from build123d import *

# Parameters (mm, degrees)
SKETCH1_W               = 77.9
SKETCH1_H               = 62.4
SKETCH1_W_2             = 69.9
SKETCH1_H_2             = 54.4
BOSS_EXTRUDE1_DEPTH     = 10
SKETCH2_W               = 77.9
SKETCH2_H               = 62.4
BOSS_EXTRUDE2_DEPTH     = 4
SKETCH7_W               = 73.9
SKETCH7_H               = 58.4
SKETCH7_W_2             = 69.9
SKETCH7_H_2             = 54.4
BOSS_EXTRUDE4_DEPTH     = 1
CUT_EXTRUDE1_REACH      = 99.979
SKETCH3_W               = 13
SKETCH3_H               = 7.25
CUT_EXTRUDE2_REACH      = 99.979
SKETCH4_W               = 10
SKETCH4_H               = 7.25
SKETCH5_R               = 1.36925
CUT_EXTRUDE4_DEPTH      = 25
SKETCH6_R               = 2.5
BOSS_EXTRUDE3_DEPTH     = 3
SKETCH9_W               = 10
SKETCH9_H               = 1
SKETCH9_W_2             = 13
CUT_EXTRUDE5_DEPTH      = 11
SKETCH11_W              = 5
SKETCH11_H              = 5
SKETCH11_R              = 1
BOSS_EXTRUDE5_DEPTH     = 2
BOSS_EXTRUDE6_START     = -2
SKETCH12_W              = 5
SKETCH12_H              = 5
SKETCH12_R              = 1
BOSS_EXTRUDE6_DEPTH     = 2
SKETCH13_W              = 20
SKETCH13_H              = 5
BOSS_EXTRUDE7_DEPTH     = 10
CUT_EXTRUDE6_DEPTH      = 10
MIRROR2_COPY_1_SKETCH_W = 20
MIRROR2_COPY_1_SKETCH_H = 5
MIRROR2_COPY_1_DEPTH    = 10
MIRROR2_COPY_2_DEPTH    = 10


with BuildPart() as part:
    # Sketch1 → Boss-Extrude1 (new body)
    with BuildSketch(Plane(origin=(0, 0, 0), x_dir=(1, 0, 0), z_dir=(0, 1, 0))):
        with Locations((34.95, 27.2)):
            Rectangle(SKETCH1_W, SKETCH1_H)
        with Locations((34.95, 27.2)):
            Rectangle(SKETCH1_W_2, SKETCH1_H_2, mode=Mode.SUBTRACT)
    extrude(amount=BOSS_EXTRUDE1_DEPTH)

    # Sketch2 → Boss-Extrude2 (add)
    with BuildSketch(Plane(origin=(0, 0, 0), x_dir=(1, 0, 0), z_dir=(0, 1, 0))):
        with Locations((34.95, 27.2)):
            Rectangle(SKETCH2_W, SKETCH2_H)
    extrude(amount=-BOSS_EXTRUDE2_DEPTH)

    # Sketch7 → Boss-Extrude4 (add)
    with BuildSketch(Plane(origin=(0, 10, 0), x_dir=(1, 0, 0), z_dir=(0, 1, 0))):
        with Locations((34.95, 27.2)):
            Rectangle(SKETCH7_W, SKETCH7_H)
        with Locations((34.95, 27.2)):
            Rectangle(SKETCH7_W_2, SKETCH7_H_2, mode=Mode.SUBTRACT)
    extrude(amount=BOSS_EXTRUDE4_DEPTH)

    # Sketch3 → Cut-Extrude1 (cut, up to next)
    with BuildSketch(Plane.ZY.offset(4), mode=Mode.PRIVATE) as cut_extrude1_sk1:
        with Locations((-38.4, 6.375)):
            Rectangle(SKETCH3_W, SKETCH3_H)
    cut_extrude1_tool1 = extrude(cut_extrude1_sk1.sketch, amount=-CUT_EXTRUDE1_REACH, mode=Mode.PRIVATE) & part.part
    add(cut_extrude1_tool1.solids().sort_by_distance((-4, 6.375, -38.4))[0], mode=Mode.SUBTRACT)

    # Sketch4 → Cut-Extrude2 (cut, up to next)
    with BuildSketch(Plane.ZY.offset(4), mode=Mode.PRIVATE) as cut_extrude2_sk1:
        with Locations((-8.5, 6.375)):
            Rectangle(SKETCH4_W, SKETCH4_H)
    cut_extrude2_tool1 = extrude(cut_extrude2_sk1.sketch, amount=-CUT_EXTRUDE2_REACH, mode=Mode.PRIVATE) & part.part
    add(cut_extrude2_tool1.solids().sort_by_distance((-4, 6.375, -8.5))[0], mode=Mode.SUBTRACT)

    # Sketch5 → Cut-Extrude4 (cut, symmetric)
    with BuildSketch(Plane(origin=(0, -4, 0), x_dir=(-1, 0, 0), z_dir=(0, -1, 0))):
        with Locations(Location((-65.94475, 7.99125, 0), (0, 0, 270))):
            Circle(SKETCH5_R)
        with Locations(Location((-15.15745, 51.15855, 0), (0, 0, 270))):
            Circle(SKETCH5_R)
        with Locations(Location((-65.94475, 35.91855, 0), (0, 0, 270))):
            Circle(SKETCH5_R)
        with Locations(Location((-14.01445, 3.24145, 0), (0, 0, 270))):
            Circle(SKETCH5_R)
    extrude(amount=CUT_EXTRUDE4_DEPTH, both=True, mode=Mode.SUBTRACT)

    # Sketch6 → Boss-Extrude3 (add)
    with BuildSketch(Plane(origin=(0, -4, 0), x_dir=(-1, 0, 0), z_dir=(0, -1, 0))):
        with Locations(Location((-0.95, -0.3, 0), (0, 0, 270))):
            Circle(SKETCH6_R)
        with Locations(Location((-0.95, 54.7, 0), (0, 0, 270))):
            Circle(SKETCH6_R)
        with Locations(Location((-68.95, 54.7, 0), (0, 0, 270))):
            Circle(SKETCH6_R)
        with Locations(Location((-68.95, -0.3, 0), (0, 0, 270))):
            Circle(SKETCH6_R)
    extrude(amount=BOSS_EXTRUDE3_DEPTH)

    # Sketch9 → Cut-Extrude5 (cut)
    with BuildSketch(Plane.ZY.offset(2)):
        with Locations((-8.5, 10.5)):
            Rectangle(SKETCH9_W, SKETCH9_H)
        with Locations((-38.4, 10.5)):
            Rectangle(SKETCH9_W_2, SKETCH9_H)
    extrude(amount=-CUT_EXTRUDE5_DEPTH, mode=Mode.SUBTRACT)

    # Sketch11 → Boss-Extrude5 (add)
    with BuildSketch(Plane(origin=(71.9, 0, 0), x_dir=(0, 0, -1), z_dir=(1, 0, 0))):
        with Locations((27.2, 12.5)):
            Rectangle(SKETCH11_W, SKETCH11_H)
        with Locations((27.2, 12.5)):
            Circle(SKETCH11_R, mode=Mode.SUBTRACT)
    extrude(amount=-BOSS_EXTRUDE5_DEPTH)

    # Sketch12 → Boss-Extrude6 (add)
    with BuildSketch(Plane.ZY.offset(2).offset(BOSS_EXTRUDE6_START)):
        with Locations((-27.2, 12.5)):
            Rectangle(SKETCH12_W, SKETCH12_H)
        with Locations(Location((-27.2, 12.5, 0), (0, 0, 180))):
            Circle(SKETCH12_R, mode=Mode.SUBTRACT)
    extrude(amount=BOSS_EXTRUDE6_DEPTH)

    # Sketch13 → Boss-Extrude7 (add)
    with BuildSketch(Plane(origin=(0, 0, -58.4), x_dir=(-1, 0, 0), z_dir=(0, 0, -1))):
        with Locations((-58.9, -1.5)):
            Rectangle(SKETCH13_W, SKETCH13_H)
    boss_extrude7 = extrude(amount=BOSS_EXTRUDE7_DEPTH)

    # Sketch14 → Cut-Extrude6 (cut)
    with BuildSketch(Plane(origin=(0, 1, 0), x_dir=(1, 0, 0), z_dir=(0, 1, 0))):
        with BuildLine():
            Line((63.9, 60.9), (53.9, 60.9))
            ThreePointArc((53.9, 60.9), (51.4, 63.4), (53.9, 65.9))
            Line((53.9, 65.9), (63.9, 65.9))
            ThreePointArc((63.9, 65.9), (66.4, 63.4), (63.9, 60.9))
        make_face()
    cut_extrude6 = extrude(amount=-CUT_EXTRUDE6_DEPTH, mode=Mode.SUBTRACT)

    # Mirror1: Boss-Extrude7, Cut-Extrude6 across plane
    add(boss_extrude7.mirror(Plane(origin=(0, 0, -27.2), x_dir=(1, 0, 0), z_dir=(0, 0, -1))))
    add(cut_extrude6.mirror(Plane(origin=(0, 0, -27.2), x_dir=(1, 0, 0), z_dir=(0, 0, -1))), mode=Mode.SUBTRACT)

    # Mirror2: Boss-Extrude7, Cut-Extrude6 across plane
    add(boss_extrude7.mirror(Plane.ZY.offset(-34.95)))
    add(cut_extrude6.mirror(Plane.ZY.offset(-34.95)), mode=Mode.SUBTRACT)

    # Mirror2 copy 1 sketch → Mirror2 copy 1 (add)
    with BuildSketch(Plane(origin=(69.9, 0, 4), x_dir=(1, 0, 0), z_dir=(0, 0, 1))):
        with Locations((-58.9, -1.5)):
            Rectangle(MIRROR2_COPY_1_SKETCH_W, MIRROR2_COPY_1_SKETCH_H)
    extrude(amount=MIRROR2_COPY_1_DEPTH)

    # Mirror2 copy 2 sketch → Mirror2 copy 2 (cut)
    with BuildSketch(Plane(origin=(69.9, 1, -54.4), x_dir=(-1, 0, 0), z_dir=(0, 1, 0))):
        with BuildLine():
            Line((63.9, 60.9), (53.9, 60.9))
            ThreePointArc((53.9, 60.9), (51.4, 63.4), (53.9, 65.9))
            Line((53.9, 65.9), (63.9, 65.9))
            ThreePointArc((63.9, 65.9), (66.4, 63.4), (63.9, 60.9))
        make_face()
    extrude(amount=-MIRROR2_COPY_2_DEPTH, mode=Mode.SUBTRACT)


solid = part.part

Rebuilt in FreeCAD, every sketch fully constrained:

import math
import FreeCAD as App
import Part
import Sketcher

V = App.Vector
Q = App.Units.Quantity

doc = App.newDocument("Part")
body = doc.addObject("PartDesign::Body", "Body")

# Sketch on XZ plane
sketch1 = body.newObject("Sketcher::SketchObject", "Sketch")
sketch1.AttachmentSupport = (doc.getObject("XZ_Plane"), [""])
sketch1.MapMode = "FlatFace"
sketch1.addGeometry(Part.LineSegment(V(-4, -58.4, 0), V(-4, 4, 0)), False)
sketch1.addGeometry(Part.LineSegment(V(-4, 4, 0), V(73.9, 4, 0)), False)
sketch1.addGeometry(Part.LineSegment(V(73.9, 4, 0), V(73.9, -58.4, 0)), False)
sketch1.addGeometry(Part.LineSegment(V(73.9, -58.4, 0), V(-4, -58.4, 0)), False)
sketch1.addGeometry(Part.LineSegment(V(69.9, 0, 0), V(0, 0, 0)), False)
sketch1.addGeometry(Part.LineSegment(V(0, 0, 0), V(0, -54.4, 0)), False)
sketch1.addGeometry(Part.LineSegment(V(0, -54.4, 0), V(69.9, -54.4, 0)), False)
sketch1.addGeometry(Part.LineSegment(V(69.9, -54.4, 0), V(69.9, 0, 0)), False)
sketch1.addConstraint(Sketcher.Constraint("Coincident", 0, 2, 1, 1))
sketch1.addConstraint(Sketcher.Constraint("Coincident", 1, 2, 2, 1))
sketch1.addConstraint(Sketcher.Constraint("Coincident", 2, 2, 3, 1))
sketch1.addConstraint(Sketcher.Constraint("Coincident", 3, 2, 0, 1))
sketch1.addConstraint(Sketcher.Constraint("Coincident", 4, 2, 5, 1))
sketch1.addConstraint(Sketcher.Constraint("Coincident", 5, 2, 6, 1))
sketch1.addConstraint(Sketcher.Constraint("Coincident", 6, 2, 7, 1))
sketch1.addConstraint(Sketcher.Constraint("Coincident", 7, 2, 4, 1))
sketch1.addConstraint(Sketcher.Constraint("Vertical", 0))
sketch1.addConstraint(Sketcher.Constraint("Horizontal", 1))
sketch1.addConstraint(Sketcher.Constraint("Vertical", 2))
sketch1.addConstraint(Sketcher.Constraint("Horizontal", 3))
sketch1.addConstraint(Sketcher.Constraint("Horizontal", 4))
sketch1.addConstraint(Sketcher.Constraint("Vertical", 5))
sketch1.addConstraint(Sketcher.Constraint("Horizontal", 6))
sketch1.addConstraint(Sketcher.Constraint("Vertical", 7))
sketch1.addConstraint(Sketcher.Constraint("Coincident", 4, 2, -1, 1))
sketch1.addConstraint(Sketcher.Constraint("DistanceX", 1, 1, 1, 2, Q("77.9 mm")))
sketch1.addConstraint(Sketcher.Constraint("DistanceX", 4, 2, 4, 1, Q("69.9 mm")))
sketch1.addConstraint(Sketcher.Constraint("DistanceY", 0, 1, 0, 2, Q("62.4 mm")))
sketch1.addConstraint(Sketcher.Constraint("DistanceY", 5, 2, 5, 1, Q("54.4 mm")))
sketch1.addConstraint(Sketcher.Constraint("DistanceX", 0, 2, -1, 1, Q("4 mm")))
sketch1.addConstraint(Sketcher.Constraint("DistanceY", -1, 1, 0, 2, Q("4 mm")))
pad1 = body.newObject("PartDesign::Pad", "Pad")
pad1.Profile = sketch1
pad1.Length = 10
pad1.Reversed = True

# Sketch on XZ plane
sketch2 = body.newObject("Sketcher::SketchObject", "Sketch001")
sketch2.AttachmentSupport = (doc.getObject("XZ_Plane"), [""])
sketch2.MapMode = "FlatFace"
sketch2.addGeometry(Part.LineSegment(V(-4, -58.4, 0), V(-4, 4, 0)), False)
sketch2.addGeometry(Part.LineSegment(V(-4, 4, 0), V(73.9, 4, 0)), False)
sketch2.addGeometry(Part.LineSegment(V(73.9, 4, 0), V(73.9, -58.4, 0)), False)
sketch2.addGeometry(Part.LineSegment(V(73.9, -58.4, 0), V(-4, -58.4, 0)), False)
sketch2.addConstraint(Sketcher.Constraint("Coincident", 0, 2, 1, 1))
sketch2.addConstraint(Sketcher.Constraint("Coincident", 1, 2, 2, 1))
sketch2.addConstraint(Sketcher.Constraint("Coincident", 2, 2, 3, 1))
sketch2.addConstraint(Sketcher.Constraint("Coincident", 3, 2, 0, 1))
sketch2.addConstraint(Sketcher.Constraint("Vertical", 0))
sketch2.addConstraint(Sketcher.Constraint("Horizontal", 1))
sketch2.addConstraint(Sketcher.Constraint("Vertical", 2))
sketch2.addConstraint(Sketcher.Constraint("Horizontal", 3))
sketch2.addConstraint(Sketcher.Constraint("DistanceX", 1, 1, 1, 2, Q("77.9 mm")))
sketch2.addConstraint(Sketcher.Constraint("DistanceY", 0, 1, 0, 2, Q("62.4 mm")))
sketch2.addConstraint(Sketcher.Constraint("DistanceX", 0, 2, -1, 1, Q("4 mm")))
sketch2.addConstraint(Sketcher.Constraint("DistanceY", -1, 1, 0, 2, Q("4 mm")))
pad2 = body.newObject("PartDesign::Pad", "Pad001")
pad2.Profile = sketch2
pad2.Length = 4

# Sketch on XZ plane
sketch3 = body.newObject("Sketcher::SketchObject", "Sketch002")
sketch3.AttachmentSupport = (doc.getObject("XZ_Plane"), [""])
sketch3.MapMode = "FlatFace"
sketch3.AttachmentOffset = App.Placement(V(0, 0, -10), App.Rotation())
sketch3.addGeometry(Part.LineSegment(V(-2, -56.4, 0), V(-2, 2, 0)), False)
sketch3.addGeometry(Part.LineSegment(V(-2, 2, 0), V(71.9, 2, 0)), False)
sketch3.addGeometry(Part.LineSegment(V(71.9, 2, 0), V(71.9, -56.4, 0)), False)
sketch3.addGeometry(Part.LineSegment(V(71.9, -56.4, 0), V(-2, -56.4, 0)), False)
sketch3.addGeometry(Part.LineSegment(V(69.9, 0, 0), V(0, 0, 0)), False)
sketch3.addGeometry(Part.LineSegment(V(0, 0, 0), V(0, -54.4, 0)), False)
sketch3.addGeometry(Part.LineSegment(V(0, -54.4, 0), V(69.9, -54.4, 0)), False)
sketch3.addGeometry(Part.LineSegment(V(69.9, -54.4, 0), V(69.9, 0, 0)), False)
sketch3.addConstraint(Sketcher.Constraint("Coincident", 0, 2, 1, 1))
sketch3.addConstraint(Sketcher.Constraint("Coincident", 1, 2, 2, 1))
sketch3.addConstraint(Sketcher.Constraint("Coincident", 2, 2, 3, 1))
sketch3.addConstraint(Sketcher.Constraint("Coincident", 3, 2, 0, 1))
sketch3.addConstraint(Sketcher.Constraint("Coincident", 4, 2, 5, 1))
sketch3.addConstraint(Sketcher.Constraint("Coincident", 5, 2, 6, 1))
sketch3.addConstraint(Sketcher.Constraint("Coincident", 6, 2, 7, 1))
sketch3.addConstraint(Sketcher.Constraint("Coincident", 7, 2, 4, 1))
sketch3.addConstraint(Sketcher.Constraint("Vertical", 0))
sketch3.addConstraint(Sketcher.Constraint("Horizontal", 1))
sketch3.addConstraint(Sketcher.Constraint("Vertical", 2))
sketch3.addConstraint(Sketcher.Constraint("Horizontal", 3))
sketch3.addConstraint(Sketcher.Constraint("Horizontal", 4))
sketch3.addConstraint(Sketcher.Constraint("Vertical", 5))
sketch3.addConstraint(Sketcher.Constraint("Horizontal", 6))
sketch3.addConstraint(Sketcher.Constraint("Vertical", 7))
sketch3.addConstraint(Sketcher.Constraint("Coincident", 4, 2, -1, 1))
sketch3.addConstraint(Sketcher.Constraint("DistanceX", 1, 1, 1, 2, Q("73.9 mm")))
sketch3.addConstraint(Sketcher.Constraint("DistanceX", 4, 2, 4, 1, Q("69.9 mm")))
sketch3.addConstraint(Sketcher.Constraint("DistanceY", 0, 1, 0, 2, Q("58.4 mm")))
sketch3.addConstraint(Sketcher.Constraint("DistanceY", 5, 2, 5, 1, Q("54.4 mm")))
sketch3.addConstraint(Sketcher.Constraint("DistanceX", 0, 2, -1, 1, Q("2 mm")))
sketch3.addConstraint(Sketcher.Constraint("DistanceY", -1, 1, 0, 2, Q("2 mm")))
pad3 = body.newObject("PartDesign::Pad", "Pad002")
pad3.Profile = sketch3
pad3.Length = 1
pad3.Reversed = True

# Sketch on YZ plane
sketch4 = body.newObject("Sketcher::SketchObject", "Sketch003")
sketch4.AttachmentSupport = (doc.getObject("YZ_Plane"), [""])
sketch4.MapMode = "FlatFace"
sketch4.AttachmentOffset = App.Placement(V(0, 0, -4), App.Rotation())
sketch4.addGeometry(Part.LineSegment(V(10, -44.9, 0), V(2.75, -44.9, 0)), False)
sketch4.addGeometry(Part.LineSegment(V(2.75, -44.9, 0), V(2.75, -31.9, 0)), False)
sketch4.addGeometry(Part.LineSegment(V(2.75, -31.9, 0), V(10, -31.9, 0)), False)
sketch4.addGeometry(Part.LineSegment(V(10, -31.9, 0), V(10, -44.9, 0)), False)
sketch4.addConstraint(Sketcher.Constraint("Coincident", 0, 2, 1, 1))
sketch4.addConstraint(Sketcher.Constraint("Coincident", 1, 2, 2, 1))
sketch4.addConstraint(Sketcher.Constraint("Coincident", 2, 2, 3, 1))
sketch4.addConstraint(Sketcher.Constraint("Coincident", 3, 2, 0, 1))
sketch4.addConstraint(Sketcher.Constraint("Horizontal", 0))
sketch4.addConstraint(Sketcher.Constraint("Vertical", 1))
sketch4.addConstraint(Sketcher.Constraint("Horizontal", 2))
sketch4.addConstraint(Sketcher.Constraint("Vertical", 3))
sketch4.addConstraint(Sketcher.Constraint("DistanceY", 1, 1, 1, 2, Q("13 mm")))
sketch4.addConstraint(Sketcher.Constraint("DistanceX", -1, 1, 2, 2, Q("10 mm")))
sketch4.addConstraint(Sketcher.Constraint("DistanceX", 0, 2, 0, 1, Q("7.25 mm")))
sketch4.addConstraint(Sketcher.Constraint("DistanceY", 0, 2, -1, 1, Q("44.9 mm")))
pocket1 = body.newObject("PartDesign::Pocket", "Pocket")
pocket1.Profile = sketch4
pocket1.Type = "UpToFirst"
pocket1.Reversed = True

# Sketch on YZ plane
sketch5 = body.newObject("Sketcher::SketchObject", "Sketch004")
sketch5.AttachmentSupport = (doc.getObject("YZ_Plane"), [""])
sketch5.MapMode = "FlatFace"
sketch5.AttachmentOffset = App.Placement(V(0, 0, -4), App.Rotation())
sketch5.addGeometry(Part.LineSegment(V(10, -13.5, 0), V(2.75, -13.5, 0)), False)
sketch5.addGeometry(Part.LineSegment(V(2.75, -13.5, 0), V(2.75, -3.5, 0)), False)
sketch5.addGeometry(Part.LineSegment(V(2.75, -3.5, 0), V(10, -3.5, 0)), False)
sketch5.addGeometry(Part.LineSegment(V(10, -3.5, 0), V(10, -13.5, 0)), False)
sketch5.addConstraint(Sketcher.Constraint("Coincident", 0, 2, 1, 1))
sketch5.addConstraint(Sketcher.Constraint("Coincident", 1, 2, 2, 1))
sketch5.addConstraint(Sketcher.Constraint("Coincident", 2, 2, 3, 1))
sketch5.addConstraint(Sketcher.Constraint("Coincident", 3, 2, 0, 1))
sketch5.addConstraint(Sketcher.Constraint("Horizontal", 0))
sketch5.addConstraint(Sketcher.Constraint("Vertical", 1))
sketch5.addConstraint(Sketcher.Constraint("Horizontal", 2))
sketch5.addConstraint(Sketcher.Constraint("Vertical", 3))
sketch5.addConstraint(Sketcher.Constraint("DistanceY", 1, 1, 1, 2, Q("10 mm")))
sketch5.addConstraint(Sketcher.Constraint("DistanceX", -1, 1, 2, 2, Q("10 mm")))
sketch5.addConstraint(Sketcher.Constraint("DistanceX", 0, 2, 0, 1, Q("7.25 mm")))
sketch5.addConstraint(Sketcher.Constraint("DistanceY", 0, 2, -1, 1, Q("13.5 mm")))
pocket2 = body.newObject("PartDesign::Pocket", "Pocket001")
pocket2.Profile = sketch5
pocket2.Type = "UpToFirst"
pocket2.Reversed = True

# Sketch on XZ plane
sketch6 = body.newObject("Sketcher::SketchObject", "Sketch005")
sketch6.AttachmentSupport = (doc.getObject("XZ_Plane"), [""])
sketch6.MapMode = "FlatFace"
sketch6.AttachmentOffset = App.Placement(V(0, 0, 4), App.Rotation())
sketch6.addGeometry(Part.Circle(V(65.94475, -7.99125, 0), V(0, 0, 1), 1.36925), False)
sketch6.addGeometry(Part.Circle(V(15.15745, -51.15855, 0), V(0, 0, 1), 1.36925), False)
sketch6.addGeometry(Part.Circle(V(65.94475, -35.91855, 0), V(0, 0, 1), 1.36925), False)
sketch6.addGeometry(Part.Circle(V(14.01445, -3.24145, 0), V(0, 0, 1), 1.36925), False)
sketch6.addConstraint(Sketcher.Constraint("Equal", 0, 1))
sketch6.addConstraint(Sketcher.Constraint("Equal", 1, 2))
sketch6.addConstraint(Sketcher.Constraint("Equal", 2, 3))
sketch6.addConstraint(Sketcher.Constraint("Vertical", 0, 3, 2, 3))
sketch6.addConstraint(Sketcher.Constraint("Diameter", 0, Q("2.7385 mm")))
sketch6.addConstraint(Sketcher.Constraint("DistanceY", 1, 3, 2, 3, Q("15.24 mm")))
sketch6.addConstraint(Sketcher.Constraint("DistanceX", 3, 3, 1, 3, Q("1.143 mm")))
sketch6.addConstraint(Sketcher.Constraint("DistanceX", 1, 3, 0, 3, Q("50.7873 mm")))
sketch6.addConstraint(Sketcher.Constraint("DistanceY", 1, 3, 0, 3, Q("43.1673 mm")))
sketch6.addConstraint(Sketcher.Constraint("DistanceY", 1, 3, 3, 3, Q("47.9171 mm")))
sketch6.addConstraint(Sketcher.Constraint("DistanceX", -1, 1, 0, 3, Q("65.94475 mm")))
sketch6.addConstraint(Sketcher.Constraint("DistanceY", 0, 3, -1, 1, Q("7.99125 mm")))
pocket3 = body.newObject("PartDesign::Pocket", "Pocket002")
pocket3.Profile = sketch6
pocket3.Length = 50
pocket3.Midplane = True

# Sketch on XZ plane
sketch7 = body.newObject("Sketcher::SketchObject", "Sketch006")
sketch7.AttachmentSupport = (doc.getObject("XZ_Plane"), [""])
sketch7.MapMode = "FlatFace"
sketch7.AttachmentOffset = App.Placement(V(0, 0, 4), App.Rotation())
sketch7.addGeometry(Part.Circle(V(0.95, 0.3, 0), V(0, 0, 1), 2.5), False)
sketch7.addGeometry(Part.Circle(V(0.95, -54.7, 0), V(0, 0, 1), 2.5), False)
sketch7.addGeometry(Part.Circle(V(68.95, -54.7, 0), V(0, 0, 1), 2.5), False)
sketch7.addGeometry(Part.Circle(V(68.95, 0.3, 0), V(0, 0, 1), 2.5), False)
sketch7.addConstraint(Sketcher.Constraint("Equal", 0, 1))
sketch7.addConstraint(Sketcher.Constraint("Equal", 1, 2))
sketch7.addConstraint(Sketcher.Constraint("Equal", 2, 3))
sketch7.addConstraint(Sketcher.Constraint("Horizontal", 1, 3, 2, 3))
sketch7.addConstraint(Sketcher.Constraint("Horizontal", 0, 3, 3, 3))
sketch7.addConstraint(Sketcher.Constraint("Vertical", 0, 3, 1, 3))
sketch7.addConstraint(Sketcher.Constraint("Vertical", 2, 3, 3, 3))
sketch7.addConstraint(Sketcher.Constraint("Diameter", 0, Q("5 mm")))
sketch7.addConstraint(Sketcher.Constraint("DistanceY", 1, 3, 0, 3, Q("55 mm")))
sketch7.addConstraint(Sketcher.Constraint("DistanceX", 1, 3, 2, 3, Q("68 mm")))
sketch7.addConstraint(Sketcher.Constraint("DistanceY", -1, 1, 0, 3, Q("0.3 mm")))
sketch7.addConstraint(Sketcher.Constraint("DistanceX", -1, 1, 0, 3, Q("0.95 mm")))
pad4 = body.newObject("PartDesign::Pad", "Pad003")
pad4.Profile = sketch7
pad4.Length = 3

# Sketch on YZ plane
sketch8 = body.newObject("Sketcher::SketchObject", "Sketch007")
sketch8.AttachmentSupport = (doc.getObject("YZ_Plane"), [""])
sketch8.MapMode = "FlatFace"
sketch8.AttachmentOffset = App.Placement(V(0, 0, -2), App.Rotation())
sketch8.addGeometry(Part.LineSegment(V(11, -13.5, 0), V(10, -13.5, 0)), False)
sketch8.addGeometry(Part.LineSegment(V(10, -13.5, 0), V(10, -3.5, 0)), False)
sketch8.addGeometry(Part.LineSegment(V(10, -3.5, 0), V(11, -3.5, 0)), False)
sketch8.addGeometry(Part.LineSegment(V(11, -3.5, 0), V(11, -13.5, 0)), False)
sketch8.addGeometry(Part.LineSegment(V(11, -44.9, 0), V(10, -44.9, 0)), False)
sketch8.addGeometry(Part.LineSegment(V(10, -44.9, 0), V(10, -31.9, 0)), False)
sketch8.addGeometry(Part.LineSegment(V(10, -31.9, 0), V(11, -31.9, 0)), False)
sketch8.addGeometry(Part.LineSegment(V(11, -31.9, 0), V(11, -44.9, 0)), False)
sketch8.addConstraint(Sketcher.Constraint("Coincident", 0, 2, 1, 1))
sketch8.addConstraint(Sketcher.Constraint("Coincident", 1, 2, 2, 1))
sketch8.addConstraint(Sketcher.Constraint("Coincident", 2, 2, 3, 1))
sketch8.addConstraint(Sketcher.Constraint("Coincident", 3, 2, 0, 1))
sketch8.addConstraint(Sketcher.Constraint("Coincident", 4, 2, 5, 1))
sketch8.addConstraint(Sketcher.Constraint("Coincident", 5, 2, 6, 1))
sketch8.addConstraint(Sketcher.Constraint("Coincident", 6, 2, 7, 1))
sketch8.addConstraint(Sketcher.Constraint("Coincident", 7, 2, 4, 1))
sketch8.addConstraint(Sketcher.Constraint("Horizontal", 0))
sketch8.addConstraint(Sketcher.Constraint("Vertical", 1))
sketch8.addConstraint(Sketcher.Constraint("Horizontal", 2))
sketch8.addConstraint(Sketcher.Constraint("Vertical", 3))
sketch8.addConstraint(Sketcher.Constraint("Horizontal", 4))
sketch8.addConstraint(Sketcher.Constraint("Vertical", 5))
sketch8.addConstraint(Sketcher.Constraint("Horizontal", 6))
sketch8.addConstraint(Sketcher.Constraint("Vertical", 7))
sketch8.addConstraint(Sketcher.Constraint("Vertical", 1, 2, 4, 2))
sketch8.addConstraint(Sketcher.Constraint("Vertical", 3, 2, 6, 2))
sketch8.addConstraint(Sketcher.Constraint("DistanceX", 0, 2, 0, 1, Q("1 mm")))
sketch8.addConstraint(Sketcher.Constraint("DistanceY", 1, 1, 1, 2, Q("10 mm")))
sketch8.addConstraint(Sketcher.Constraint("DistanceY", 5, 1, 5, 2, Q("13 mm")))
sketch8.addConstraint(Sketcher.Constraint("DistanceX", -1, 1, 0, 2, Q("10 mm")))
sketch8.addConstraint(Sketcher.Constraint("DistanceY", 0, 2, -1, 1, Q("13.5 mm")))
sketch8.addConstraint(Sketcher.Constraint("DistanceY", 4, 2, -1, 1, Q("44.9 mm")))
pocket4 = body.newObject("PartDesign::Pocket", "Pocket003")
pocket4.Profile = sketch8
pocket4.Length = 11
pocket4.Reversed = True

# Sketch on YZ plane
sketch9 = body.newObject("Sketcher::SketchObject", "Sketch008")
sketch9.AttachmentSupport = (doc.getObject("YZ_Plane"), [""])
sketch9.MapMode = "FlatFace"
sketch9.AttachmentOffset = App.Placement(V(0, 0, 71.9), App.Rotation())
sketch9.addGeometry(Part.LineSegment(V(15, -24.7, 0), V(10, -24.7, 0)), False)
sketch9.addGeometry(Part.LineSegment(V(10, -24.7, 0), V(10, -29.7, 0)), False)
sketch9.addGeometry(Part.LineSegment(V(10, -29.7, 0), V(15, -29.7, 0)), False)
sketch9.addGeometry(Part.LineSegment(V(15, -29.7, 0), V(15, -24.7, 0)), False)
sketch9.addGeometry(Part.Circle(V(12.5, -27.2, 0), V(0, 0, 1), 1), False)
sketch9.addConstraint(Sketcher.Constraint("Coincident", 0, 2, 1, 1))
sketch9.addConstraint(Sketcher.Constraint("Coincident", 1, 2, 2, 1))
sketch9.addConstraint(Sketcher.Constraint("Coincident", 2, 2, 3, 1))
sketch9.addConstraint(Sketcher.Constraint("Coincident", 3, 2, 0, 1))
sketch9.addConstraint(Sketcher.Constraint("Horizontal", 0))
sketch9.addConstraint(Sketcher.Constraint("Vertical", 1))
sketch9.addConstraint(Sketcher.Constraint("Horizontal", 2))
sketch9.addConstraint(Sketcher.Constraint("Vertical", 3))
sketch9.addConstraint(Sketcher.Constraint("Equal", 2, 1))
sketch9.addConstraint(Sketcher.Constraint("Diameter", 4, Q("2 mm")))
sketch9.addConstraint(Sketcher.Constraint("DistanceX", 0, 2, 0, 1, Q("5 mm")))
sketch9.addConstraint(Sketcher.Constraint("DistanceX", -1, 1, 0, 2, Q("10 mm")))
sketch9.addConstraint(Sketcher.Constraint("DistanceX", -1, 1, 4, 3, Q("12.5 mm")))
sketch9.addConstraint(Sketcher.Constraint("DistanceY", 4, 3, -1, 1, Q("27.2 mm")))
sketch9.addConstraint(Sketcher.Constraint("DistanceY", 0, 2, -1, 1, Q("24.7 mm")))
pad5 = body.newObject("PartDesign::Pad", "Pad004")
pad5.Profile = sketch9
pad5.Length = 2
pad5.Reversed = True

# Sketch on YZ plane
sketch10 = body.newObject("Sketcher::SketchObject", "Sketch009")
sketch10.AttachmentSupport = (doc.getObject("YZ_Plane"), [""])
sketch10.MapMode = "FlatFace"
sketch10.addGeometry(Part.LineSegment(V(15, -29.7, 0), V(10, -29.7, 0)), False)
sketch10.addGeometry(Part.LineSegment(V(10, -29.7, 0), V(10, -24.7, 0)), False)
sketch10.addGeometry(Part.LineSegment(V(10, -24.7, 0), V(15, -24.7, 0)), False)
sketch10.addGeometry(Part.LineSegment(V(15, -24.7, 0), V(15, -29.7, 0)), False)
sketch10.addGeometry(Part.Circle(V(12.5, -27.2, 0), V(0, 0, 1), 1), False)
sketch10.addConstraint(Sketcher.Constraint("Coincident", 0, 2, 1, 1))
sketch10.addConstraint(Sketcher.Constraint("Coincident", 1, 2, 2, 1))
sketch10.addConstraint(Sketcher.Constraint("Coincident", 2, 2, 3, 1))
sketch10.addConstraint(Sketcher.Constraint("Coincident", 3, 2, 0, 1))
sketch10.addConstraint(Sketcher.Constraint("Horizontal", 0))
sketch10.addConstraint(Sketcher.Constraint("Vertical", 1))
sketch10.addConstraint(Sketcher.Constraint("Horizontal", 2))
sketch10.addConstraint(Sketcher.Constraint("Vertical", 3))
sketch10.addConstraint(Sketcher.Constraint("Equal", 2, 1))
sketch10.addConstraint(Sketcher.Constraint("Diameter", 4, Q("2 mm")))
sketch10.addConstraint(Sketcher.Constraint("DistanceX", 0, 2, 0, 1, Q("5 mm")))
sketch10.addConstraint(Sketcher.Constraint("DistanceX", -1, 1, 0, 2, Q("10 mm")))
sketch10.addConstraint(Sketcher.Constraint("DistanceX", -1, 1, 4, 3, Q("12.5 mm")))
sketch10.addConstraint(Sketcher.Constraint("DistanceY", 4, 3, -1, 1, Q("27.2 mm")))
sketch10.addConstraint(Sketcher.Constraint("DistanceY", 0, 2, -1, 1, Q("29.7 mm")))
pad6 = body.newObject("PartDesign::Pad", "Pad005")
pad6.Profile = sketch10
pad6.Length = 2
pad6.Reversed = True

# Sketch on XY plane
sketch11 = body.newObject("Sketcher::SketchObject", "Sketch010")
sketch11.AttachmentSupport = (doc.getObject("XY_Plane"), [""])
sketch11.MapMode = "FlatFace"
sketch11.AttachmentOffset = App.Placement(V(0, 0, -58.4), App.Rotation())
sketch11.addGeometry(Part.LineSegment(V(68.9, 1, 0), V(68.9, -4, 0)), False)
sketch11.addGeometry(Part.LineSegment(V(68.9, -4, 0), V(48.9, -4, 0)), False)
sketch11.addGeometry(Part.LineSegment(V(48.9, -4, 0), V(48.9, 1, 0)), False)
sketch11.addGeometry(Part.LineSegment(V(48.9, 1, 0), V(68.9, 1, 0)), False)
sketch11.addConstraint(Sketcher.Constraint("Coincident", 0, 2, 1, 1))
sketch11.addConstraint(Sketcher.Constraint("Coincident", 1, 2, 2, 1))
sketch11.addConstraint(Sketcher.Constraint("Coincident", 2, 2, 3, 1))
sketch11.addConstraint(Sketcher.Constraint("Coincident", 3, 2, 0, 1))
sketch11.addConstraint(Sketcher.Constraint("Vertical", 0))
sketch11.addConstraint(Sketcher.Constraint("Horizontal", 1))
sketch11.addConstraint(Sketcher.Constraint("Vertical", 2))
sketch11.addConstraint(Sketcher.Constraint("Horizontal", 3))
sketch11.addConstraint(Sketcher.Constraint("DistanceX", 1, 2, 1, 1, Q("20 mm")))
sketch11.addConstraint(Sketcher.Constraint("DistanceY", 0, 2, 0, 1, Q("5 mm")))
sketch11.addConstraint(Sketcher.Constraint("DistanceY", 0, 2, -1, 1, Q("4 mm")))
sketch11.addConstraint(Sketcher.Constraint("DistanceX", -1, 1, 0, 2, Q("68.9 mm")))
pad7 = body.newObject("PartDesign::Pad", "Pad006")
pad7.Profile = sketch11
pad7.Length = 10
pad7.Reversed = True

# Sketch on XZ plane
sketch12 = body.newObject("Sketcher::SketchObject", "Sketch011")
sketch12.AttachmentSupport = (doc.getObject("XZ_Plane"), [""])
sketch12.MapMode = "FlatFace"
sketch12.AttachmentOffset = App.Placement(V(0, 0, -1), App.Rotation())
sketch12.addGeometry(Part.LineSegment(V(53.9, -60.9, 0), V(63.9, -60.9, 0)), False)
sketch12.addGeometry(Part.ArcOfCircle(Part.Circle(V(63.9, -63.4, 0), V(0, 0, 1), 2.5), math.radians(-90), math.radians(90)), False)
sketch12.addGeometry(Part.LineSegment(V(63.9, -65.9, 0), V(53.9, -65.9, 0)), False)
sketch12.addGeometry(Part.ArcOfCircle(Part.Circle(V(53.9, -63.4, 0), V(0, 0, 1), 2.5), math.radians(90), math.radians(270)), False)
sketch12.addConstraint(Sketcher.Constraint("Tangent", 0, 2, 1, 2))
sketch12.addConstraint(Sketcher.Constraint("Tangent", 1, 1, 2, 1))
sketch12.addConstraint(Sketcher.Constraint("Tangent", 2, 2, 3, 2))
sketch12.addConstraint(Sketcher.Constraint("Tangent", 3, 1, 0, 1))
sketch12.addConstraint(Sketcher.Constraint("Horizontal", 0))
sketch12.addConstraint(Sketcher.Constraint("Horizontal", 2))
sketch12.addConstraint(Sketcher.Constraint("Radius", 1, Q("2.5 mm")))
sketch12.addConstraint(Sketcher.Constraint("DistanceX", 0, 1, 0, 2, Q("10 mm")))
sketch12.addConstraint(Sketcher.Constraint("DistanceX", -1, 1, 1, 3, Q("63.9 mm")))
sketch12.addConstraint(Sketcher.Constraint("DistanceY", 1, 3, -1, 1, Q("63.4 mm")))
pocket5 = body.newObject("PartDesign::Pocket", "Pocket004")
pocket5.Profile = sketch12
pocket5.Length = 10
pocket5.Reversed = True
doc.recompute()

datumplane = body.newObject("PartDesign::Plane", "DatumPlane")
datumplane.AttachmentSupport = (doc.getObject("XY_Plane"), [""])
datumplane.MapMode = "FlatFace"
datumplane.AttachmentOffset = App.Placement(V(0, 0, -27.2), App.Rotation())
mirrored = body.newObject("PartDesign::Mirrored", "Mirrored")
mirrored.Originals = [pad7, pocket5]
mirrored.MirrorPlane = (datumplane, [""])
body.Tip = mirrored
doc.recompute()

datumplane2 = body.newObject("PartDesign::Plane", "DatumPlane001")
datumplane2.AttachmentSupport = (doc.getObject("YZ_Plane"), [""])
datumplane2.MapMode = "FlatFace"
datumplane2.AttachmentOffset = App.Placement(V(0, 0, 34.95), App.Rotation())
mirrored2 = body.newObject("PartDesign::Mirrored", "Mirrored001")
mirrored2.Originals = [pad7, pocket5]
mirrored2.MirrorPlane = (datumplane2, [""])
body.Tip = mirrored2

# Sketch on XY plane
sketch13 = body.newObject("Sketcher::SketchObject", "Sketch012")
sketch13.AttachmentSupport = (doc.getObject("XY_Plane"), [""])
sketch13.MapMode = "FlatFace"
sketch13.AttachmentOffset = App.Placement(V(0, 0, 4), App.Rotation())
sketch13.addGeometry(Part.LineSegment(V(1, 1, 0), V(1, -4, 0)), False)
sketch13.addGeometry(Part.LineSegment(V(1, -4, 0), V(21, -4, 0)), False)
sketch13.addGeometry(Part.LineSegment(V(21, -4, 0), V(21, 1, 0)), False)
sketch13.addGeometry(Part.LineSegment(V(21, 1, 0), V(1, 1, 0)), False)
sketch13.addConstraint(Sketcher.Constraint("Coincident", 0, 2, 1, 1))
sketch13.addConstraint(Sketcher.Constraint("Coincident", 1, 2, 2, 1))
sketch13.addConstraint(Sketcher.Constraint("Coincident", 2, 2, 3, 1))
sketch13.addConstraint(Sketcher.Constraint("Coincident", 3, 2, 0, 1))
sketch13.addConstraint(Sketcher.Constraint("Vertical", 0))
sketch13.addConstraint(Sketcher.Constraint("Horizontal", 1))
sketch13.addConstraint(Sketcher.Constraint("Vertical", 2))
sketch13.addConstraint(Sketcher.Constraint("Horizontal", 3))
sketch13.addConstraint(Sketcher.Constraint("DistanceX", 1, 1, 1, 2, Q("20 mm")))
sketch13.addConstraint(Sketcher.Constraint("DistanceY", 0, 2, 0, 1, Q("5 mm")))
sketch13.addConstraint(Sketcher.Constraint("DistanceX", -1, 1, 0, 2, Q("1 mm")))
sketch13.addConstraint(Sketcher.Constraint("DistanceY", 0, 2, -1, 1, Q("4 mm")))
pad8 = body.newObject("PartDesign::Pad", "Pad007")
pad8.Profile = sketch13
pad8.Length = 10

# Sketch on XZ plane
sketch14 = body.newObject("Sketcher::SketchObject", "Sketch013")
sketch14.AttachmentSupport = (doc.getObject("XZ_Plane"), [""])
sketch14.MapMode = "FlatFace"
sketch14.AttachmentOffset = App.Placement(V(0, 0, -1), App.Rotation())
sketch14.addGeometry(Part.LineSegment(V(16, 6.5, 0), V(6, 6.5, 0)), False)
sketch14.addGeometry(Part.ArcOfCircle(Part.Circle(V(6, 9, 0), V(0, 0, 1), 2.5), math.radians(90), math.radians(270)), False)
sketch14.addGeometry(Part.LineSegment(V(6, 11.5, 0), V(16, 11.5, 0)), False)
sketch14.addGeometry(Part.ArcOfCircle(Part.Circle(V(16, 9, 0), V(0, 0, 1), 2.5), math.radians(-90), math.radians(90)), False)
sketch14.addConstraint(Sketcher.Constraint("Tangent", 0, 2, 1, 2))
sketch14.addConstraint(Sketcher.Constraint("Tangent", 1, 1, 2, 1))
sketch14.addConstraint(Sketcher.Constraint("Tangent", 2, 2, 3, 2))
sketch14.addConstraint(Sketcher.Constraint("Tangent", 3, 1, 0, 1))
sketch14.addConstraint(Sketcher.Constraint("Horizontal", 0))
sketch14.addConstraint(Sketcher.Constraint("Horizontal", 2))
sketch14.addConstraint(Sketcher.Constraint("Radius", 1, Q("2.5 mm")))
sketch14.addConstraint(Sketcher.Constraint("DistanceX", 0, 2, 0, 1, Q("10 mm")))
sketch14.addConstraint(Sketcher.Constraint("DistanceX", -1, 1, 1, 3, Q("6 mm")))
sketch14.addConstraint(Sketcher.Constraint("DistanceY", -1, 1, 1, 3, Q("9 mm")))
pocket6 = body.newObject("PartDesign::Pocket", "Pocket005")
pocket6.Profile = sketch14
pocket6.Length = 10
pocket6.Reversed = True

doc.recompute()
